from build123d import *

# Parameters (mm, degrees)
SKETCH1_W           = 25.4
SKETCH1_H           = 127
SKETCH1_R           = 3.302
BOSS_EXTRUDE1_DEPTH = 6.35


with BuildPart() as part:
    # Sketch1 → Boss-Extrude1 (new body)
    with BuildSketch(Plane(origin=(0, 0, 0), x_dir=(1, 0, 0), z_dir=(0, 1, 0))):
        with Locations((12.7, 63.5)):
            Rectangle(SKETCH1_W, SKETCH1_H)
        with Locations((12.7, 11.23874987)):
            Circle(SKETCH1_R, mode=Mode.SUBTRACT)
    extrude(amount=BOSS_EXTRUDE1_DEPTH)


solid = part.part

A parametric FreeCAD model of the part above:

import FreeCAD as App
import Part
import Sketcher
Q = App.Units.Quantity

doc = App.newDocument("Part")
body = doc.addObject("PartDesign::Body", "Body")

# Sketch on XZ plane
sketch1 = doc.addObject("Sketcher::SketchObject", "Sketch")
body.addObject(sketch1)
sketch1.AttachmentSupport = (doc.XZ_Plane, [""])
sketch1.MapMode = "FlatFace"
sketch1.addGeometry([
    Part.LineSegment(App.Vector(0, -127, 0), App.Vector(0, 0, 0)),  # 0
    Part.LineSegment(App.Vector(0, 0, 0), App.Vector(25.4, 0, 0)),  # 1
    Part.LineSegment(App.Vector(25.4, 0, 0), App.Vector(25.4, -127, 0)),  # 2
    Part.LineSegment(App.Vector(25.4, -127, 0), App.Vector(0, -127, 0)),  # 3
    Part.Circle(App.Vector(12.7, -11.2, 0), App.Vector(0, 0, 1), 3.3),  # 4
], False)
sketch1.addConstraint([
    Sketcher.Constraint("Coincident", 0, 2, 1, 1),
    Sketcher.Constraint("Coincident", 1, 2, 2, 1),
    Sketcher.Constraint("Coincident", 2, 2, 3, 1),
    Sketcher.Constraint("Coincident", 3, 2, 0, 1),
    Sketcher.Constraint("Vertical", 0),
    Sketcher.Constraint("Horizontal", 1),
    Sketcher.Constraint("Vertical", 2),
    Sketcher.Constraint("Horizontal", 3),
    Sketcher.Constraint("Coincident", 0, 2, -1, 1),
    Sketcher.Constraint("Diameter", 4, Q("0.26 in")),
    Sketcher.Constraint("DistanceX", 1, 1, 1, 2, Q("1 in")),
    Sketcher.Constraint("DistanceY", 0, 1, 0, 2, Q("5 in")),
    Sketcher.Constraint("DistanceX", -1, 1, 4, 3, Q("0.5 in")),
    Sketcher.Constraint("DistanceY", 4, 3, -1, 1, Q("11.23875 mm")),
])
pad1 = doc.addObject("PartDesign::Pad", "Pad")
body.addObject(pad1)
pad1.Profile = sketch1
pad1.Length = Q("0.25 in")
pad1.Reversed = True

doc.recompute()
